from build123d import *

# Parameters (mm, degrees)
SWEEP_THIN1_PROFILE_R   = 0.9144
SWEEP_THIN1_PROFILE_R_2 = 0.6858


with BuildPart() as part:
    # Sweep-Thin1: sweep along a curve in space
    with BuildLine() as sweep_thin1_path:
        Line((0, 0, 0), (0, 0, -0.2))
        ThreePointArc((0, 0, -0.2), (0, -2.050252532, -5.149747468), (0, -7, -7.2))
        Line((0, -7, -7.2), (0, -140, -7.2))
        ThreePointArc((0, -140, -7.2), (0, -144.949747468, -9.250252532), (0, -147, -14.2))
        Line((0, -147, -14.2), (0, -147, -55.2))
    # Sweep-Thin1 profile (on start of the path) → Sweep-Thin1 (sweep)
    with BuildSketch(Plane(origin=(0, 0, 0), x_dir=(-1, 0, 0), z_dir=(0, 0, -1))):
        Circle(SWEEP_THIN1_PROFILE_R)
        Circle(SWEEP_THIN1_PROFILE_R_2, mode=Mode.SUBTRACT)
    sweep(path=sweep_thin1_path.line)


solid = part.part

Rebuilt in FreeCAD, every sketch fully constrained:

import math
import FreeCAD as App
import Part
import Sketcher

V = App.Vector
Q = App.Units.Quantity

doc = App.newDocument("Part")
body = doc.addObject("PartDesign::Body", "Body")

# Sketch on XY plane
sketch1 = doc.addObject("Sketcher::SketchObject", "Sketch")
body.addObject(sketch1)
sketch1.AttachmentSupport = (doc.XY_Plane, [""])
sketch1.MapMode = "FlatFace"
sketch1.addGeometry(Part.Circle(V(0, 0, 0), V(0, 0, 1), 0.9), False)
sketch1.addGeometry(Part.Circle(V(0, 0, 0), V(0, 0, 1), 0.7), False)
sketch1.addConstraint(Sketcher.Constraint("Coincident", 0, 3, -1, 1))
sketch1.addConstraint(Sketcher.Constraint("Coincident", 1, 3, -1, 1))
sketch1.addConstraint(Sketcher.Constraint("Diameter", 0, Q("1.8288 mm")))
sketch1.addConstraint(Sketcher.Constraint("Diameter", 1, Q("1.3716 mm")))

# Sketch on YZ plane
sketch2 = doc.addObject("Sketcher::SketchObject", "Sketch001")
body.addObject(sketch2)
sketch2.AttachmentSupport = (doc.YZ_Plane, [""])
sketch2.MapMode = "FlatFace"
sketch2.addGeometry(Part.LineSegment(V(0, 0, 0), V(0, -0.2, 0)), False)
sketch2.addGeometry(Part.ArcOfCircle(Part.Circle(V(-7, -0.2, 0), V(0, 0, 1), 7), math.radians(-90), math.radians(0)), False)
sketch2.addGeometry(Part.LineSegment(V(-7, -7.2, 0), V(-140, -7.2, 0)), False)
sketch2.addGeometry(Part.ArcOfCircle(Part.Circle(V(-140, -14.2, 0), V(0, 0, 1), 7), math.radians(90), math.radians(180)), False)
sketch2.addGeometry(Part.LineSegment(V(-147, -14.2, 0), V(-147, -55.2, 0)), False)
sketch2.addConstraint(Sketcher.Constraint("Tangent", 0, 2, 1, 2))
sketch2.addConstraint(Sketcher.Constraint("Tangent", 1, 1, 2, 1))
sketch2.addConstraint(Sketcher.Constraint("Tangent", 2, 2, 3, 1))
sketch2.addConstraint(Sketcher.Constraint("Tangent", 3, 2, 4, 1))
sketch2.addConstraint(Sketcher.Constraint("Vertical", 0))
sketch2.addConstraint(Sketcher.Constraint("Horizontal", 2))
sketch2.addConstraint(Sketcher.Constraint("Vertical", 4))
sketch2.addConstraint(Sketcher.Constraint("Coincident", 0, 1, -1, 1))
sketch2.addConstraint(Sketcher.Constraint("Equal", 1, 3))
sketch2.addConstraint(Sketcher.Constraint("Radius", 1, Q("7 mm")))
sketch2.addConstraint(Sketcher.Constraint("DistanceX", 2, 2, 2, 1, Q("133 mm")))
sketch2.addConstraint(Sketcher.Constraint("DistanceY", 4, 2, 4, 1, Q("41 mm")))
sketch2.addConstraint(Sketcher.Constraint("DistanceY", 0, 2, 0, 1, Q("0.2 mm")))
doc.recompute()

additivepipe = doc.addObject("PartDesign::AdditivePipe", "AdditivePipe")
body.addObject(additivepipe)
additivepipe.Profile = sketch1
additivepipe.Spine = (sketch2, ["Edge1", "Edge2", "Edge3", "Edge4", "Edge5"])

doc.recompute()
